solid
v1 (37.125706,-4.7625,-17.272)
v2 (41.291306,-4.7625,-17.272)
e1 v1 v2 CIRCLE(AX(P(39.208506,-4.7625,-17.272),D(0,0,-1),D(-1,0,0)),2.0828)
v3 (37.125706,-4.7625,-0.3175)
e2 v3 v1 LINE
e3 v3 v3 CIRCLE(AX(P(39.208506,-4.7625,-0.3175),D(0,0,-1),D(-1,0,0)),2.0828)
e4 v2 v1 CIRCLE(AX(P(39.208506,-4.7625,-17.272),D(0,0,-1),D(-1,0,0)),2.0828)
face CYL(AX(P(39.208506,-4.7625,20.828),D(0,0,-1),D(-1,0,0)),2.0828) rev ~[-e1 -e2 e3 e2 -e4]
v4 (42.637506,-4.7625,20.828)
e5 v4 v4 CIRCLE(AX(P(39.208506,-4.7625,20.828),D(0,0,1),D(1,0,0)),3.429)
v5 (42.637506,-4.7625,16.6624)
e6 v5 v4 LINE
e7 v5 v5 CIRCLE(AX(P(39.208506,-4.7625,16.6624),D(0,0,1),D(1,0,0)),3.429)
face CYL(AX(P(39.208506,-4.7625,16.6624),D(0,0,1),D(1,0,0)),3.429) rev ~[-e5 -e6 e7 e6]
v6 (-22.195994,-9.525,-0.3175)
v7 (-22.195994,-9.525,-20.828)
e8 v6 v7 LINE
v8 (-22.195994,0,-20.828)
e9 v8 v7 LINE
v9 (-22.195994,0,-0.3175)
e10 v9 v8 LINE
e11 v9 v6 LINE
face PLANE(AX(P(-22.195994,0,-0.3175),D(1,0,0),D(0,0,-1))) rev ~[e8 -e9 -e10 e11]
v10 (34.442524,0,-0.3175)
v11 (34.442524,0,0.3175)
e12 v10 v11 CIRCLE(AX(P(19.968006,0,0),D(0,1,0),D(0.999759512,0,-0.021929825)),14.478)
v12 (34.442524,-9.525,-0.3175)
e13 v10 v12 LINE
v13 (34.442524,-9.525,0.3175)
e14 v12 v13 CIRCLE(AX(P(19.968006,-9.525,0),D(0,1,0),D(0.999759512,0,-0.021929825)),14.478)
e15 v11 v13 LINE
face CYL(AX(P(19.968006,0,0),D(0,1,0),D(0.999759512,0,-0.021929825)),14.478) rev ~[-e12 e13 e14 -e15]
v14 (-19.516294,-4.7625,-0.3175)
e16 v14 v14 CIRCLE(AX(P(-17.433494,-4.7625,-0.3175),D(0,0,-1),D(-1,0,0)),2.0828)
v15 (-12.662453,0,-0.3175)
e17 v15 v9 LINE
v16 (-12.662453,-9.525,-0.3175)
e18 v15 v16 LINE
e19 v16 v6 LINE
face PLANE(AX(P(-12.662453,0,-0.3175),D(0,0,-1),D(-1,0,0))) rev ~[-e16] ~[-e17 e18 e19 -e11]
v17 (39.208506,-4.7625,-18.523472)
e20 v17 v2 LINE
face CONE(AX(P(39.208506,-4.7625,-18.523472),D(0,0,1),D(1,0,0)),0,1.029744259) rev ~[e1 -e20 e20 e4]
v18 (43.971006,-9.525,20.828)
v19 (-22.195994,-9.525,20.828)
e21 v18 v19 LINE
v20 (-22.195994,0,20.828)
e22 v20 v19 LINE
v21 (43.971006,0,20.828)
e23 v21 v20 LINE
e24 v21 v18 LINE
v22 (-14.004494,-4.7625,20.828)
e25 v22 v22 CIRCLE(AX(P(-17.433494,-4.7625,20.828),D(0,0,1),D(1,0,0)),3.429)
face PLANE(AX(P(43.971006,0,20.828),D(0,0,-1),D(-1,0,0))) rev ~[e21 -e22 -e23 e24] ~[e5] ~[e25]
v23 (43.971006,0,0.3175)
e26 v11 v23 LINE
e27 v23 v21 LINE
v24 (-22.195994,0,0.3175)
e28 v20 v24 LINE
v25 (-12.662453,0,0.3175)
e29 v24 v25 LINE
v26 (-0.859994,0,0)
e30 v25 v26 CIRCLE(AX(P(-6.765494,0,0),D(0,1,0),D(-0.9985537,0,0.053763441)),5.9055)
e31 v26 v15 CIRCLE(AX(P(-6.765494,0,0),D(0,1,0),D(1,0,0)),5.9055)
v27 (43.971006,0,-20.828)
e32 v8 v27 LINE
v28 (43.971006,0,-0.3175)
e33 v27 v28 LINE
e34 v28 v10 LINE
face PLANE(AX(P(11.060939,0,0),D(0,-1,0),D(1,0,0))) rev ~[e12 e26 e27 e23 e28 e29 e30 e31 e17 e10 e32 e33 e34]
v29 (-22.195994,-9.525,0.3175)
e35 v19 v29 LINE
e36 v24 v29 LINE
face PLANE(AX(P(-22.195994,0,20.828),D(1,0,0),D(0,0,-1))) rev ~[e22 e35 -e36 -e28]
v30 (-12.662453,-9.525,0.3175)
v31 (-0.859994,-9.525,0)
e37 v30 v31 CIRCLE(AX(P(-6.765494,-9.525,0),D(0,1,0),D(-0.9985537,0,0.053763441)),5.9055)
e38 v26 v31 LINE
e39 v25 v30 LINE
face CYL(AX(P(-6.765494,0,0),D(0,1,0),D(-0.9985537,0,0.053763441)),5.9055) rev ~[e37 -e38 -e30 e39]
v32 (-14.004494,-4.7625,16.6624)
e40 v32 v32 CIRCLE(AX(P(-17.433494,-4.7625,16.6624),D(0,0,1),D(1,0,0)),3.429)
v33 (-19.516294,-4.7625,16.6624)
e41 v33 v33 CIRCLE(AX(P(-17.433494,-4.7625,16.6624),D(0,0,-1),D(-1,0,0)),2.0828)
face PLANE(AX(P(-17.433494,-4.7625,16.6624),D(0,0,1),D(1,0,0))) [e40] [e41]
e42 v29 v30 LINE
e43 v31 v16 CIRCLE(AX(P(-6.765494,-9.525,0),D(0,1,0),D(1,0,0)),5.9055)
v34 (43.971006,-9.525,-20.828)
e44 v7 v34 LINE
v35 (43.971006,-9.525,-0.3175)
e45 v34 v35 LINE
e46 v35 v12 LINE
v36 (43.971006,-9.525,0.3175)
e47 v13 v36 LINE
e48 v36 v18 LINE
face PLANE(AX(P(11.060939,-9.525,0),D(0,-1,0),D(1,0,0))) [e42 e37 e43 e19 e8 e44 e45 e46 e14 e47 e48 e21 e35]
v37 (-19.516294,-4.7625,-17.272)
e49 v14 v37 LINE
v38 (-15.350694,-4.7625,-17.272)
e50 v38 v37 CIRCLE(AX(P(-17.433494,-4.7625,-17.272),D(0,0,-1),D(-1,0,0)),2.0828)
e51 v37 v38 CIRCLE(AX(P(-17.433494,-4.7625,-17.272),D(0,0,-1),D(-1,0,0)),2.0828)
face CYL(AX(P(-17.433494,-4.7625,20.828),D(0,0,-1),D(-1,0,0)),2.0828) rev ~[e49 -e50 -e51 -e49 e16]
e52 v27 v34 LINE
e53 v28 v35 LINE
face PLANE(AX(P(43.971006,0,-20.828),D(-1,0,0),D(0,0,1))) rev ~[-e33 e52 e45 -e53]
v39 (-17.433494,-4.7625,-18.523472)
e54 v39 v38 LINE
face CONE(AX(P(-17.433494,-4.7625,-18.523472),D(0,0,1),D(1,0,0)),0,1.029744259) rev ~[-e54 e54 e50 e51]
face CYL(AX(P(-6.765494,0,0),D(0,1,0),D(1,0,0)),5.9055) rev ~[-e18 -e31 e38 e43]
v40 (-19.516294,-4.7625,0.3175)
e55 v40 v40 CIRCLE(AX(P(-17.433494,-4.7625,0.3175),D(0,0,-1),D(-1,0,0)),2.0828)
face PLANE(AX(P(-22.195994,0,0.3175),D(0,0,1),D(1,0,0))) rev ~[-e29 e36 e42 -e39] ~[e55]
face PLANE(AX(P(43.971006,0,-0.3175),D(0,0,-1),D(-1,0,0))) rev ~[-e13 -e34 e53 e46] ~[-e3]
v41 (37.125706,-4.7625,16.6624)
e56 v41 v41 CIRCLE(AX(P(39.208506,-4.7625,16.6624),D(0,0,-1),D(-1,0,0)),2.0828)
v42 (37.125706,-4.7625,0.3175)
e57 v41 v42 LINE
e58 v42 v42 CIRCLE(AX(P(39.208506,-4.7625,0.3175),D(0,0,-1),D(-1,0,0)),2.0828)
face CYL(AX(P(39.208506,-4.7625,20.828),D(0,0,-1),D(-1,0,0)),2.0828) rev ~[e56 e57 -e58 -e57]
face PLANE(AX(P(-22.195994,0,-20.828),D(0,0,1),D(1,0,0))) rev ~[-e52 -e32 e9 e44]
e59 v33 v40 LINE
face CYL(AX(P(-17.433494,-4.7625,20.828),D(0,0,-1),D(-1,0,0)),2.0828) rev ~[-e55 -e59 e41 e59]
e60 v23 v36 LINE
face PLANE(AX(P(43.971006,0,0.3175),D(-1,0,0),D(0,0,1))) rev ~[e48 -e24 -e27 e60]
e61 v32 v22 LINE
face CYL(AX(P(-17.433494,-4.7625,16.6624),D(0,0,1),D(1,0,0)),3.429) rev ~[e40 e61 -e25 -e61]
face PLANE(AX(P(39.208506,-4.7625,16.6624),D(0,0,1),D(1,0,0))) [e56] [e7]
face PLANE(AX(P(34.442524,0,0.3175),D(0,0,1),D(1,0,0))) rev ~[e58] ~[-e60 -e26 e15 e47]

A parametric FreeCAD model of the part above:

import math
import FreeCAD as App
import Part
import Sketcher
Q = App.Units.Quantity

doc = App.newDocument("Part")
body = doc.addObject("PartDesign::Body", "Body")

# Sketch on XZ plane
sketch1 = body.newObject("Sketcher::SketchObject", "Sketch")
sketch1.AttachmentSupport = (doc.getObject("XZ_Plane"), [""])
sketch1.MapMode = "FlatFace"
sketch1.addGeometry([
    Part.ArcOfCircle(Part.Circle(App.Vector(-6.8, 0, 0), App.Vector(0, 0, 1), 5.9), math.radians(0), math.radians(177)),  # 0
    Part.ArcOfCircle(Part.Circle(App.Vector(-6.8, 0, 0), App.Vector(0, 0, 1), 5.9), math.radians(-177), math.radians(0)),  # 1
    Part.LineSegment(App.Vector(-12.7, -0.3, 0), App.Vector(-22.2, -0.3, 0)),  # 2
    Part.LineSegment(App.Vector(-22.2, -0.3, 0), App.Vector(-22.2, -20.8, 0)),  # 3
    Part.LineSegment(App.Vector(-22.2, -20.8, 0), App.Vector(44, -20.8, 0)),  # 4
    Part.LineSegment(App.Vector(44, -20.8, 0), App.Vector(44, -0.3, 0)),  # 5
    Part.LineSegment(App.Vector(44, -0.3, 0), App.Vector(34.4, -0.3, 0)),  # 6
    Part.ArcOfCircle(Part.Circle(App.Vector(20, 0, 0), App.Vector(0, 0, 1), 14.5), math.radians(1), math.radians(359)),  # 7
    Part.LineSegment(App.Vector(34.4, 0.3, 0), App.Vector(44, 0.3, 0)),  # 8
    Part.LineSegment(App.Vector(44, 0.3, 0), App.Vector(44, 20.8, 0)),  # 9
    Part.LineSegment(App.Vector(44, 20.8, 0), App.Vector(-22.2, 20.8, 0)),  # 10
    Part.LineSegment(App.Vector(-22.2, 20.8, 0), App.Vector(-22.2, 0.3, 0)),  # 11
    Part.LineSegment(App.Vector(-22.2, 0.3, 0), App.Vector(-12.7, 0.3, 0)),  # 12
], False)
sketch1.addConstraint([
    Sketcher.Constraint("Tangent", 0, 1, 1, 2),
    Sketcher.Constraint("Coincident", 1, 1, 2, 1),
    Sketcher.Constraint("Coincident", 2, 2, 3, 1),
    Sketcher.Constraint("Coincident", 3, 2, 4, 1),
    Sketcher.Constraint("Coincident", 4, 2, 5, 1),
    Sketcher.Constraint("Coincident", 5, 2, 6, 1),
    Sketcher.Constraint("Coincident", 6, 2, 7, 2),
    Sketcher.Constraint("Coincident", 7, 1, 8, 1),
    Sketcher.Constraint("Coincident", 8, 2, 9, 1),
    Sketcher.Constraint("Coincident", 9, 2, 10, 1),
    Sketcher.Constraint("Coincident", 10, 2, 11, 1),
    Sketcher.Constraint("Coincident", 11, 2, 12, 1),
    Sketcher.Constraint("Coincident", 12, 2, 0, 2),
    Sketcher.Constraint("Horizontal", 2),
    Sketcher.Constraint("Vertical", 3),
    Sketcher.Constraint("Horizontal", 4),
    Sketcher.Constraint("Vertical", 5),
    Sketcher.Constraint("Horizontal", 6),
    Sketcher.Constraint("Horizontal", 8),
    Sketcher.Constraint("Vertical", 9),
    Sketcher.Constraint("Horizontal", 10),
    Sketcher.Constraint("Vertical", 11),
    Sketcher.Constraint("Horizontal", 12),
    Sketcher.Constraint("Equal", 0, 1),
    Sketcher.Constraint("Symmetric", 6, 2, 7, 1, -1),
    Sketcher.Constraint("Symmetric", 4, 2, 9, 2, -1),
    Sketcher.Constraint("Symmetric", 2, 2, 11, 2, -1),
    Sketcher.Constraint("PointOnObject", 0, 3, -1),
    Sketcher.Constraint("PointOnObject", 0, 1, -1),
    Sketcher.Constraint("Horizontal", 2, 2, 5, 2),
    Sketcher.Constraint("Radius", 7, Q("0.57 in")),
    Sketcher.Constraint("Radius", 0, Q("0.2325 in")),
    Sketcher.Constraint("DistanceX", 4, 1, 4, 2, Q("2.605 in")),
    Sketcher.Constraint("DistanceY", 3, 2, -1, 1, Q("0.82 in")),
    Sketcher.Constraint("DistanceX", 0, 1, 7, 3, Q("0.82 in")),
    Sketcher.Constraint("DistanceX", 2, 2, 0, 1, Q("0.84 in")),
    Sketcher.Constraint("DistanceY", 3, 2, 3, 1, Q("0.8075 in")),
    Sketcher.Constraint("DistanceX", 0, 3, -1, 1, Q("6.765494 mm")),
])
pad1 = body.newObject("PartDesign::Pad", "Pad")
pad1.Profile = sketch1
pad1.Length = Q("0.375 in")

# Sketch on XY plane
sketch2 = body.newObject("Sketcher::SketchObject", "Sketch001")
sketch2.AttachmentSupport = (doc.getObject("XY_Plane"), [""])
sketch2.MapMode = "FlatFace"
sketch2.AttachmentOffset = App.Placement(App.Vector(0, 0, 0.82 * 25.4), App.Rotation())
sketch2.addGeometry([
    Part.Circle(App.Vector(-17.4, -4.8, 0), App.Vector(0, 0, 1), 2.1),
    Part.Circle(App.Vector(39.2, -4.8, 0), App.Vector(0, 0, 1), 2.1),
], False)
sketch2.addConstraint([
    Sketcher.Constraint("Equal", 0, 1),
    Sketcher.Constraint("Horizontal", 0, 3, 1, 3),
    Sketcher.Constraint("Diameter", 0, Q("0.164 in")),
    Sketcher.Constraint("DistanceX", 0, 3, 1, 3, Q("2.23 in")),
    Sketcher.Constraint("DistanceY", 0, 3, -1, 1, Q("0.1875 in")),
    Sketcher.Constraint("DistanceX", 0, 3, -1, 1, Q("17.433494 mm")),
])
doc.recompute()
hole = body.newObject("PartDesign::Hole", "Hole")
hole.Profile = sketch2
hole.ThreadType = "None"
hole.Diameter = Q("0.164 in")
hole.DepthType = "Dimension"
hole.Depth = Q("1.5 in")
hole.DrillPoint = "Angled"
hole.DrillPointAngle = 118
hole.HoleCutType = "Counterbore"
hole.HoleCutDiameter = Q("0.27 in")
hole.HoleCutDepth = Q("0.164 in")

doc.recompute()
